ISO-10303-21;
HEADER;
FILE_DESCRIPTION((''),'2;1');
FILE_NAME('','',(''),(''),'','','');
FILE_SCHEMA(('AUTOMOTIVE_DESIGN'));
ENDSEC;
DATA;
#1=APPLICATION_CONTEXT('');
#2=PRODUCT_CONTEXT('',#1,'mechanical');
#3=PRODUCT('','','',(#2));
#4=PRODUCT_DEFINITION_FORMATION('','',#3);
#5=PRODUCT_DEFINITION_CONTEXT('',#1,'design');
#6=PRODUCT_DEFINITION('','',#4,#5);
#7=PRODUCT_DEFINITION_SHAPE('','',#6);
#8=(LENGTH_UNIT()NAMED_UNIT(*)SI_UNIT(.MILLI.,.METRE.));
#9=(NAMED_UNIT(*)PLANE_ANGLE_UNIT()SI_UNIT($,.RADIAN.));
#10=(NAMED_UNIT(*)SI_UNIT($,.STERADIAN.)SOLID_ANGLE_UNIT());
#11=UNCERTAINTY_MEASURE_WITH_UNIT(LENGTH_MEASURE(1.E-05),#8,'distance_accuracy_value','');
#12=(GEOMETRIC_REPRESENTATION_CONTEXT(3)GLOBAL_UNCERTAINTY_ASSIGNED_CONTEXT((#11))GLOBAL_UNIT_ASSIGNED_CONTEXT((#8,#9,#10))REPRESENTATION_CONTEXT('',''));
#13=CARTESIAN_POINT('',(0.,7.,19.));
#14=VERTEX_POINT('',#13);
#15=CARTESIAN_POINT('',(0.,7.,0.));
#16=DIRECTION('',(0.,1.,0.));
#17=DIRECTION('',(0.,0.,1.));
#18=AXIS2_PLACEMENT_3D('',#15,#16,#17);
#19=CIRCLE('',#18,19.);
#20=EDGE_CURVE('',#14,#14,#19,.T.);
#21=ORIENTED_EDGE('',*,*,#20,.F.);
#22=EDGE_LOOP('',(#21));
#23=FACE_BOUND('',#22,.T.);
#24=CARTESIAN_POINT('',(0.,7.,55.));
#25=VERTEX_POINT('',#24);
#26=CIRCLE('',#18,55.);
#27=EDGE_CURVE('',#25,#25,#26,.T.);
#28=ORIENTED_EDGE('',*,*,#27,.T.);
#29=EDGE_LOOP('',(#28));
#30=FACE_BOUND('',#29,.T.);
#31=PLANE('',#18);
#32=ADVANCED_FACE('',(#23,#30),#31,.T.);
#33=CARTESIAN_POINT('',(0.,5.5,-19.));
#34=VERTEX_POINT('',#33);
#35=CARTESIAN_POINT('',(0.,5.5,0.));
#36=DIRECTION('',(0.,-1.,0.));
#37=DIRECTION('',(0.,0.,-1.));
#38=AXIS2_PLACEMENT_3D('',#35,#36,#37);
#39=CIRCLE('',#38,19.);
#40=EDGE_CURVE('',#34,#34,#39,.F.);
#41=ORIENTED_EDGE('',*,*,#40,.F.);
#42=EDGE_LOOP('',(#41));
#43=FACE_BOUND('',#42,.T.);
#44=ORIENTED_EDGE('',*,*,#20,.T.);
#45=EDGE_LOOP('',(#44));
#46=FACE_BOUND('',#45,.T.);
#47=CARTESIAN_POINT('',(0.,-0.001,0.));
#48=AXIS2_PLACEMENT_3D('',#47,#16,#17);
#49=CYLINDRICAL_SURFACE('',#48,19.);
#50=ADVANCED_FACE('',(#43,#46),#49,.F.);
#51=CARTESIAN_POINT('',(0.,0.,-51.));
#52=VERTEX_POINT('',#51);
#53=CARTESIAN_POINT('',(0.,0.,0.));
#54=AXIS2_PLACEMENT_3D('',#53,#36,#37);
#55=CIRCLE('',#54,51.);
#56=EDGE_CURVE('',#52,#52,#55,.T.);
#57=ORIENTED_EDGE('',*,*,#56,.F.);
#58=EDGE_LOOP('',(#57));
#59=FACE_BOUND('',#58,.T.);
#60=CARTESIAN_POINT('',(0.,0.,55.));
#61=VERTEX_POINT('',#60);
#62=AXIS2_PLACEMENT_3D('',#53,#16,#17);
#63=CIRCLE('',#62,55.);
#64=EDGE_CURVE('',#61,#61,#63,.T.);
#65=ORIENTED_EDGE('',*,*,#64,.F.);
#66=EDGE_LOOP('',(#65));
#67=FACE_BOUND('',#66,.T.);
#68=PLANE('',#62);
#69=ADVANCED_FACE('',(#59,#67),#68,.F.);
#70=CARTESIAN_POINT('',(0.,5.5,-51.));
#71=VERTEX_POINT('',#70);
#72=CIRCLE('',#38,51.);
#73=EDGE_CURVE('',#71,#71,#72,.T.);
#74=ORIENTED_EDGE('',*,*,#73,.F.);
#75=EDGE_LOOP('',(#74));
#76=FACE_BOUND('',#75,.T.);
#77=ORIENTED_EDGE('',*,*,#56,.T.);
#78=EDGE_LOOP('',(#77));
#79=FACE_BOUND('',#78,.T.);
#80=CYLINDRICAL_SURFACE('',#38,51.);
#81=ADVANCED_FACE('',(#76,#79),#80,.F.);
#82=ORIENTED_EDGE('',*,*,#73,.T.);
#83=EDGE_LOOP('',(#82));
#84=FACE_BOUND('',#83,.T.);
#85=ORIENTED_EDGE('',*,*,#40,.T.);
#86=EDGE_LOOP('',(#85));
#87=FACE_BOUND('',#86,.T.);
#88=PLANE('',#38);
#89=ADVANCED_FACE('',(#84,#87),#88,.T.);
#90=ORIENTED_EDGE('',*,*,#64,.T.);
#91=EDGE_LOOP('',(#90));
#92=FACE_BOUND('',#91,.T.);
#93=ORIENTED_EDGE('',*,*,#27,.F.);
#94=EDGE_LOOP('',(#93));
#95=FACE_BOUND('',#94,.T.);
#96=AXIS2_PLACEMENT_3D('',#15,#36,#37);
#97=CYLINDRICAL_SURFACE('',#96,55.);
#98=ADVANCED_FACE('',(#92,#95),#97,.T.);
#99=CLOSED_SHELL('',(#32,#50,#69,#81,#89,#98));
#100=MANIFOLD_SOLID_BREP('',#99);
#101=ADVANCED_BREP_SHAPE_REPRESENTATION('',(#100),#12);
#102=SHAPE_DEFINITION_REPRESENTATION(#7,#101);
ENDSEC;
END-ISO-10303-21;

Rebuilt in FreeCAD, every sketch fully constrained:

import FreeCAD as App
import Part
import Sketcher
from FreeCAD import Vector

doc = App.newDocument("Part")
body = doc.addObject("PartDesign::Body", "Body")

# Sketch on XZ plane
sketch1 = body.newObject("Sketcher::SketchObject", "Sketch")
sketch1.AttachmentSupport = (doc.getObject("XZ_Plane"), [""])
sketch1.MapMode = "FlatFace"
sketch1.addGeometry(Part.Circle(Vector(0, 0, 0), Vector(0, 0, 1), 55), False)
sketch1.addConstraint([
    Sketcher.Constraint("Coincident", 0, 3, -1, 1),
    Sketcher.Constraint("Diameter", 0, 110.0),
])
pad1 = body.newObject("PartDesign::Pad", "Pad")
pad1.Profile = sketch1
pad1.Length = 7
pad1.Reversed = True

# Sketch on XZ plane
sketch2 = body.newObject("Sketcher::SketchObject", "Sketch001")
sketch2.AttachmentSupport = (doc.getObject("XZ_Plane"), [""])
sketch2.MapMode = "FlatFace"
sketch2.addGeometry(Part.Circle(Vector(0, 0, 0), Vector(0, 0, 1), 51), False)
sketch2.addConstraint([
    Sketcher.Constraint("Coincident", 0, 3, -1, 1),
    Sketcher.Constraint("Diameter", 0, 102.0),
])
pocket1 = body.newObject("PartDesign::Pocket", "Pocket")
pocket1.Profile = sketch2
pocket1.Length = 5.5

# Sketch on XZ plane
sketch3 = body.newObject("Sketcher::SketchObject", "Sketch002")
sketch3.AttachmentSupport = (doc.getObject("XZ_Plane"), [""])
sketch3.MapMode = "FlatFace"
sketch3.AttachmentOffset = App.Placement(Vector(0, 0, -7), App.Rotation())
sketch3.addGeometry(Part.Circle(Vector(0, 0, 0), Vector(0, 0, 1), 19), False)
sketch3.addConstraint([
    Sketcher.Constraint("Coincident", 0, 3, -1, 1),
    Sketcher.Constraint("Diameter", 0, 38.0),
])
pocket2 = body.newObject("PartDesign::Pocket", "Pocket001")
pocket2.Profile = sketch3
pocket2.Type = "UpToFirst"
pocket2.Reversed = True

doc.recompute()
